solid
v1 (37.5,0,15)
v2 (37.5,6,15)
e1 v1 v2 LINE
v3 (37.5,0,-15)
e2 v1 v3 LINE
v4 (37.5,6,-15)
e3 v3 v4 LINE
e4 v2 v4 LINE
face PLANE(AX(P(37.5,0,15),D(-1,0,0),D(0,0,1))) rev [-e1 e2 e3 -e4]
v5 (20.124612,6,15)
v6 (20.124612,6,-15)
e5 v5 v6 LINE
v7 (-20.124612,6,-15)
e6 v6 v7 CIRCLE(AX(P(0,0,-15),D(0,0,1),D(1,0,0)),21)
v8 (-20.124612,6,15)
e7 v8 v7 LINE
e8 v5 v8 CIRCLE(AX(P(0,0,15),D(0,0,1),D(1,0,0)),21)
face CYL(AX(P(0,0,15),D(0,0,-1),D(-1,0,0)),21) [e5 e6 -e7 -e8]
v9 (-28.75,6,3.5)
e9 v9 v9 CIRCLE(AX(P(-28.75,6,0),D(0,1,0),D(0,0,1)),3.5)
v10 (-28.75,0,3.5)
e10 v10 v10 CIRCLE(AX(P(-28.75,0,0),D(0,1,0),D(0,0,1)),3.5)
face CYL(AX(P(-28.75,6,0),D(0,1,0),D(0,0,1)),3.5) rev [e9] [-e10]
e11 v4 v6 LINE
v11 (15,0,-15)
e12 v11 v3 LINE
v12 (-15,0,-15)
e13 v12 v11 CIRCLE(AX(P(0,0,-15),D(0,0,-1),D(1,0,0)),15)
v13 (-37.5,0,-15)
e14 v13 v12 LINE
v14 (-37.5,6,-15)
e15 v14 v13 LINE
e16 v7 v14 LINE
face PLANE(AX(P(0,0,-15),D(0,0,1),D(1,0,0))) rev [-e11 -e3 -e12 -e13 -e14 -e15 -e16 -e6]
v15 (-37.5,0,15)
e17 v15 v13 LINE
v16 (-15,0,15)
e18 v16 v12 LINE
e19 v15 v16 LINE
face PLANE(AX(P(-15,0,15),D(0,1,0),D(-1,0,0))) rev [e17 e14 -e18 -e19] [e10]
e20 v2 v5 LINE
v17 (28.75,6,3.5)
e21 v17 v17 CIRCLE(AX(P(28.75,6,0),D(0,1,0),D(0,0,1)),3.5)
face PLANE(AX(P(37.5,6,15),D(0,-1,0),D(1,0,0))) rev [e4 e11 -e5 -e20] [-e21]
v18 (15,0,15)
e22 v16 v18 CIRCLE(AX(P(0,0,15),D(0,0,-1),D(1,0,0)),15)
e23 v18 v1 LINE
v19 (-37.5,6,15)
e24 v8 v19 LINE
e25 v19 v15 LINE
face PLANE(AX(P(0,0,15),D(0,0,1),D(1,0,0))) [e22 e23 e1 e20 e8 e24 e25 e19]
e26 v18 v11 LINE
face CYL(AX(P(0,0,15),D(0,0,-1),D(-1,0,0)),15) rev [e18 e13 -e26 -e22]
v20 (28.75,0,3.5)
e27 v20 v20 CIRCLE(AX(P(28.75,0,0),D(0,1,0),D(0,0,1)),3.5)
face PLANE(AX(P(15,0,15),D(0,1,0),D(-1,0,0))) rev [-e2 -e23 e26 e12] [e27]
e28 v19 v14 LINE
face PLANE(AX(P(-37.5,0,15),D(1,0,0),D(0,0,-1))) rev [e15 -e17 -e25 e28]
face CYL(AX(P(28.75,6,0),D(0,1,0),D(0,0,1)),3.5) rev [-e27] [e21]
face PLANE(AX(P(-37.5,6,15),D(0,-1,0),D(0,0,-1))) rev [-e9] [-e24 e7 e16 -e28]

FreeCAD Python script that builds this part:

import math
import FreeCAD as App
import Part
import Sketcher

V = App.Vector
Q = App.Units.Quantity

doc = App.newDocument("Part")
params = doc.addObject("Spreadsheet::Sheet", "Params")
for row, (alias, value) in enumerate([
    ("sketch1_radius", "21 mm"),
    ("sketch1_radius2", "15 mm"),
    ("sketch1_height", "6 mm"),
    ("sketch1_width", "22.5 mm"),
    ("pad1_length", "30 mm"),
    ("sketch2_diameter", "7 mm"),
    ("hole_diameter", "7 mm"),
], start=1):
    params.set(f"A{row}", alias)
    params.set(f"B{row}", "=" + value)
    params.setAlias(f"B{row}", alias)

body = doc.addObject("PartDesign::Body", "Body")

sketch1 = body.newObject("Sketcher::SketchObject", "Sketch")
sketch1.AttachmentSupport = (doc.getObject("XY_Plane"), [""])
sketch1.MapMode = "FlatFace"
sketch1.addGeometry(Part.LineSegment(V(15, 0, 0), V(38, 0, 0)), False)
sketch1.addGeometry(Part.LineSegment(V(38, 0, 0), V(38, 6, 0)), False)
sketch1.addGeometry(Part.LineSegment(V(38, 6, 0), V(20, 6, 0)), False)
sketch1.addGeometry(Part.ArcOfCircle(Part.Circle(V(0, 0, 0), V(0, 0, 1), 21), math.radians(17), math.radians(163)), False)
sketch1.addGeometry(Part.LineSegment(V(-20, 6, 0), V(-38, 6, 0)), False)
sketch1.addGeometry(Part.LineSegment(V(-38, 6, 0), V(-38, 0, 0)), False)
sketch1.addGeometry(Part.LineSegment(V(-38, 0, 0), V(-15, 0, 0)), False)
sketch1.addGeometry(Part.ArcOfCircle(Part.Circle(V(0, 0, 0), V(0, 0, 1), 15), math.radians(0), math.radians(180)), False)
sketch1.addConstraint(Sketcher.Constraint("Coincident", 0, 2, 1, 1))
sketch1.addConstraint(Sketcher.Constraint("Coincident", 1, 2, 2, 1))
sketch1.addConstraint(Sketcher.Constraint("Coincident", 2, 2, 3, 1))
sketch1.addConstraint(Sketcher.Constraint("Coincident", 3, 2, 4, 1))
sketch1.addConstraint(Sketcher.Constraint("Coincident", 4, 2, 5, 1))
sketch1.addConstraint(Sketcher.Constraint("Coincident", 5, 2, 6, 1))
sketch1.addConstraint(Sketcher.Constraint("Coincident", 6, 2, 7, 2))
sketch1.addConstraint(Sketcher.Constraint("Coincident", 7, 1, 0, 1))
sketch1.addConstraint(Sketcher.Constraint("Horizontal", 0))
sketch1.addConstraint(Sketcher.Constraint("Vertical", 1))
sketch1.addConstraint(Sketcher.Constraint("Horizontal", 2))
sketch1.addConstraint(Sketcher.Constraint("Horizontal", 4))
sketch1.addConstraint(Sketcher.Constraint("Vertical", 5))
sketch1.addConstraint(Sketcher.Constraint("Horizontal", 6))
sketch1.addConstraint(Sketcher.Constraint("Coincident", 3, 3, -1, 1))
sketch1.addConstraint(Sketcher.Constraint("Coincident", 7, 3, -1, 1))
sketch1.addConstraint(Sketcher.Constraint("Symmetric", 0, 2, 5, 2, -1, 1))
sketch1.addConstraint(Sketcher.Constraint("PointOnObject", 0, 2, -1))
sketch1.addConstraint(Sketcher.Constraint("Horizontal", 2, 2, 3, 2))
sketch1.addConstraint(Sketcher.Constraint("Radius", 3, Q("21 mm")))
sketch1.addConstraint(Sketcher.Constraint("Radius", 7, Q("15 mm")))
sketch1.addConstraint(Sketcher.Constraint("DistanceY", 1, 1, 1, 2, Q("6 mm")))
sketch1.addConstraint(Sketcher.Constraint("DistanceX", 0, 1, 0, 2, Q("22.5 mm")))
sketch1.setExpression("Constraints[19]", "Params.sketch1_radius")
sketch1.setExpression("Constraints[20]", "Params.sketch1_radius2")
sketch1.setExpression("Constraints[21]", "Params.sketch1_height")
sketch1.setExpression("Constraints[22]", "Params.sketch1_width")
pad1 = body.newObject("PartDesign::Pad", "Pad")
pad1.Profile = sketch1
pad1.setExpression("Length", "Params.pad1_length")
pad1.Midplane = True

sketch2 = body.newObject("Sketcher::SketchObject", "Sketch001")
sketch2.AttachmentSupport = (doc.getObject("XZ_Plane"), [""])
sketch2.MapMode = "FlatFace"
sketch2.AttachmentOffset = App.Placement(V(0, 0, -6), App.Rotation())
sketch2.addGeometry(Part.Circle(V(-28.8, 0, 0), V(0, 0, 1), 3.5), False)
sketch2.addGeometry(Part.Circle(V(28.8, 0, 0), V(0, 0, 1), 3.5), False)
sketch2.addConstraint(Sketcher.Constraint("Equal", 0, 1))
sketch2.addConstraint(Sketcher.Constraint("Symmetric", 0, 3, 1, 3, -1, 1))
sketch2.addConstraint(Sketcher.Constraint("PointOnObject", 0, 3, -1))
sketch2.addConstraint(Sketcher.Constraint("Diameter", 0, Q("7 mm")))
sketch2.addConstraint(Sketcher.Constraint("DistanceX", 0, 3, 1, 3, Q("57.5 mm")))
sketch2.setExpression("Constraints[3]", "Params.sketch2_diameter")
doc.recompute()
hole = body.newObject("PartDesign::Hole", "Hole")
hole.Profile = sketch2
hole.ThreadType = "None"
hole.setExpression("Diameter", "Params.hole_diameter")
hole.DepthType = "ThroughAll"
hole.Reversed = True

doc.recompute()
